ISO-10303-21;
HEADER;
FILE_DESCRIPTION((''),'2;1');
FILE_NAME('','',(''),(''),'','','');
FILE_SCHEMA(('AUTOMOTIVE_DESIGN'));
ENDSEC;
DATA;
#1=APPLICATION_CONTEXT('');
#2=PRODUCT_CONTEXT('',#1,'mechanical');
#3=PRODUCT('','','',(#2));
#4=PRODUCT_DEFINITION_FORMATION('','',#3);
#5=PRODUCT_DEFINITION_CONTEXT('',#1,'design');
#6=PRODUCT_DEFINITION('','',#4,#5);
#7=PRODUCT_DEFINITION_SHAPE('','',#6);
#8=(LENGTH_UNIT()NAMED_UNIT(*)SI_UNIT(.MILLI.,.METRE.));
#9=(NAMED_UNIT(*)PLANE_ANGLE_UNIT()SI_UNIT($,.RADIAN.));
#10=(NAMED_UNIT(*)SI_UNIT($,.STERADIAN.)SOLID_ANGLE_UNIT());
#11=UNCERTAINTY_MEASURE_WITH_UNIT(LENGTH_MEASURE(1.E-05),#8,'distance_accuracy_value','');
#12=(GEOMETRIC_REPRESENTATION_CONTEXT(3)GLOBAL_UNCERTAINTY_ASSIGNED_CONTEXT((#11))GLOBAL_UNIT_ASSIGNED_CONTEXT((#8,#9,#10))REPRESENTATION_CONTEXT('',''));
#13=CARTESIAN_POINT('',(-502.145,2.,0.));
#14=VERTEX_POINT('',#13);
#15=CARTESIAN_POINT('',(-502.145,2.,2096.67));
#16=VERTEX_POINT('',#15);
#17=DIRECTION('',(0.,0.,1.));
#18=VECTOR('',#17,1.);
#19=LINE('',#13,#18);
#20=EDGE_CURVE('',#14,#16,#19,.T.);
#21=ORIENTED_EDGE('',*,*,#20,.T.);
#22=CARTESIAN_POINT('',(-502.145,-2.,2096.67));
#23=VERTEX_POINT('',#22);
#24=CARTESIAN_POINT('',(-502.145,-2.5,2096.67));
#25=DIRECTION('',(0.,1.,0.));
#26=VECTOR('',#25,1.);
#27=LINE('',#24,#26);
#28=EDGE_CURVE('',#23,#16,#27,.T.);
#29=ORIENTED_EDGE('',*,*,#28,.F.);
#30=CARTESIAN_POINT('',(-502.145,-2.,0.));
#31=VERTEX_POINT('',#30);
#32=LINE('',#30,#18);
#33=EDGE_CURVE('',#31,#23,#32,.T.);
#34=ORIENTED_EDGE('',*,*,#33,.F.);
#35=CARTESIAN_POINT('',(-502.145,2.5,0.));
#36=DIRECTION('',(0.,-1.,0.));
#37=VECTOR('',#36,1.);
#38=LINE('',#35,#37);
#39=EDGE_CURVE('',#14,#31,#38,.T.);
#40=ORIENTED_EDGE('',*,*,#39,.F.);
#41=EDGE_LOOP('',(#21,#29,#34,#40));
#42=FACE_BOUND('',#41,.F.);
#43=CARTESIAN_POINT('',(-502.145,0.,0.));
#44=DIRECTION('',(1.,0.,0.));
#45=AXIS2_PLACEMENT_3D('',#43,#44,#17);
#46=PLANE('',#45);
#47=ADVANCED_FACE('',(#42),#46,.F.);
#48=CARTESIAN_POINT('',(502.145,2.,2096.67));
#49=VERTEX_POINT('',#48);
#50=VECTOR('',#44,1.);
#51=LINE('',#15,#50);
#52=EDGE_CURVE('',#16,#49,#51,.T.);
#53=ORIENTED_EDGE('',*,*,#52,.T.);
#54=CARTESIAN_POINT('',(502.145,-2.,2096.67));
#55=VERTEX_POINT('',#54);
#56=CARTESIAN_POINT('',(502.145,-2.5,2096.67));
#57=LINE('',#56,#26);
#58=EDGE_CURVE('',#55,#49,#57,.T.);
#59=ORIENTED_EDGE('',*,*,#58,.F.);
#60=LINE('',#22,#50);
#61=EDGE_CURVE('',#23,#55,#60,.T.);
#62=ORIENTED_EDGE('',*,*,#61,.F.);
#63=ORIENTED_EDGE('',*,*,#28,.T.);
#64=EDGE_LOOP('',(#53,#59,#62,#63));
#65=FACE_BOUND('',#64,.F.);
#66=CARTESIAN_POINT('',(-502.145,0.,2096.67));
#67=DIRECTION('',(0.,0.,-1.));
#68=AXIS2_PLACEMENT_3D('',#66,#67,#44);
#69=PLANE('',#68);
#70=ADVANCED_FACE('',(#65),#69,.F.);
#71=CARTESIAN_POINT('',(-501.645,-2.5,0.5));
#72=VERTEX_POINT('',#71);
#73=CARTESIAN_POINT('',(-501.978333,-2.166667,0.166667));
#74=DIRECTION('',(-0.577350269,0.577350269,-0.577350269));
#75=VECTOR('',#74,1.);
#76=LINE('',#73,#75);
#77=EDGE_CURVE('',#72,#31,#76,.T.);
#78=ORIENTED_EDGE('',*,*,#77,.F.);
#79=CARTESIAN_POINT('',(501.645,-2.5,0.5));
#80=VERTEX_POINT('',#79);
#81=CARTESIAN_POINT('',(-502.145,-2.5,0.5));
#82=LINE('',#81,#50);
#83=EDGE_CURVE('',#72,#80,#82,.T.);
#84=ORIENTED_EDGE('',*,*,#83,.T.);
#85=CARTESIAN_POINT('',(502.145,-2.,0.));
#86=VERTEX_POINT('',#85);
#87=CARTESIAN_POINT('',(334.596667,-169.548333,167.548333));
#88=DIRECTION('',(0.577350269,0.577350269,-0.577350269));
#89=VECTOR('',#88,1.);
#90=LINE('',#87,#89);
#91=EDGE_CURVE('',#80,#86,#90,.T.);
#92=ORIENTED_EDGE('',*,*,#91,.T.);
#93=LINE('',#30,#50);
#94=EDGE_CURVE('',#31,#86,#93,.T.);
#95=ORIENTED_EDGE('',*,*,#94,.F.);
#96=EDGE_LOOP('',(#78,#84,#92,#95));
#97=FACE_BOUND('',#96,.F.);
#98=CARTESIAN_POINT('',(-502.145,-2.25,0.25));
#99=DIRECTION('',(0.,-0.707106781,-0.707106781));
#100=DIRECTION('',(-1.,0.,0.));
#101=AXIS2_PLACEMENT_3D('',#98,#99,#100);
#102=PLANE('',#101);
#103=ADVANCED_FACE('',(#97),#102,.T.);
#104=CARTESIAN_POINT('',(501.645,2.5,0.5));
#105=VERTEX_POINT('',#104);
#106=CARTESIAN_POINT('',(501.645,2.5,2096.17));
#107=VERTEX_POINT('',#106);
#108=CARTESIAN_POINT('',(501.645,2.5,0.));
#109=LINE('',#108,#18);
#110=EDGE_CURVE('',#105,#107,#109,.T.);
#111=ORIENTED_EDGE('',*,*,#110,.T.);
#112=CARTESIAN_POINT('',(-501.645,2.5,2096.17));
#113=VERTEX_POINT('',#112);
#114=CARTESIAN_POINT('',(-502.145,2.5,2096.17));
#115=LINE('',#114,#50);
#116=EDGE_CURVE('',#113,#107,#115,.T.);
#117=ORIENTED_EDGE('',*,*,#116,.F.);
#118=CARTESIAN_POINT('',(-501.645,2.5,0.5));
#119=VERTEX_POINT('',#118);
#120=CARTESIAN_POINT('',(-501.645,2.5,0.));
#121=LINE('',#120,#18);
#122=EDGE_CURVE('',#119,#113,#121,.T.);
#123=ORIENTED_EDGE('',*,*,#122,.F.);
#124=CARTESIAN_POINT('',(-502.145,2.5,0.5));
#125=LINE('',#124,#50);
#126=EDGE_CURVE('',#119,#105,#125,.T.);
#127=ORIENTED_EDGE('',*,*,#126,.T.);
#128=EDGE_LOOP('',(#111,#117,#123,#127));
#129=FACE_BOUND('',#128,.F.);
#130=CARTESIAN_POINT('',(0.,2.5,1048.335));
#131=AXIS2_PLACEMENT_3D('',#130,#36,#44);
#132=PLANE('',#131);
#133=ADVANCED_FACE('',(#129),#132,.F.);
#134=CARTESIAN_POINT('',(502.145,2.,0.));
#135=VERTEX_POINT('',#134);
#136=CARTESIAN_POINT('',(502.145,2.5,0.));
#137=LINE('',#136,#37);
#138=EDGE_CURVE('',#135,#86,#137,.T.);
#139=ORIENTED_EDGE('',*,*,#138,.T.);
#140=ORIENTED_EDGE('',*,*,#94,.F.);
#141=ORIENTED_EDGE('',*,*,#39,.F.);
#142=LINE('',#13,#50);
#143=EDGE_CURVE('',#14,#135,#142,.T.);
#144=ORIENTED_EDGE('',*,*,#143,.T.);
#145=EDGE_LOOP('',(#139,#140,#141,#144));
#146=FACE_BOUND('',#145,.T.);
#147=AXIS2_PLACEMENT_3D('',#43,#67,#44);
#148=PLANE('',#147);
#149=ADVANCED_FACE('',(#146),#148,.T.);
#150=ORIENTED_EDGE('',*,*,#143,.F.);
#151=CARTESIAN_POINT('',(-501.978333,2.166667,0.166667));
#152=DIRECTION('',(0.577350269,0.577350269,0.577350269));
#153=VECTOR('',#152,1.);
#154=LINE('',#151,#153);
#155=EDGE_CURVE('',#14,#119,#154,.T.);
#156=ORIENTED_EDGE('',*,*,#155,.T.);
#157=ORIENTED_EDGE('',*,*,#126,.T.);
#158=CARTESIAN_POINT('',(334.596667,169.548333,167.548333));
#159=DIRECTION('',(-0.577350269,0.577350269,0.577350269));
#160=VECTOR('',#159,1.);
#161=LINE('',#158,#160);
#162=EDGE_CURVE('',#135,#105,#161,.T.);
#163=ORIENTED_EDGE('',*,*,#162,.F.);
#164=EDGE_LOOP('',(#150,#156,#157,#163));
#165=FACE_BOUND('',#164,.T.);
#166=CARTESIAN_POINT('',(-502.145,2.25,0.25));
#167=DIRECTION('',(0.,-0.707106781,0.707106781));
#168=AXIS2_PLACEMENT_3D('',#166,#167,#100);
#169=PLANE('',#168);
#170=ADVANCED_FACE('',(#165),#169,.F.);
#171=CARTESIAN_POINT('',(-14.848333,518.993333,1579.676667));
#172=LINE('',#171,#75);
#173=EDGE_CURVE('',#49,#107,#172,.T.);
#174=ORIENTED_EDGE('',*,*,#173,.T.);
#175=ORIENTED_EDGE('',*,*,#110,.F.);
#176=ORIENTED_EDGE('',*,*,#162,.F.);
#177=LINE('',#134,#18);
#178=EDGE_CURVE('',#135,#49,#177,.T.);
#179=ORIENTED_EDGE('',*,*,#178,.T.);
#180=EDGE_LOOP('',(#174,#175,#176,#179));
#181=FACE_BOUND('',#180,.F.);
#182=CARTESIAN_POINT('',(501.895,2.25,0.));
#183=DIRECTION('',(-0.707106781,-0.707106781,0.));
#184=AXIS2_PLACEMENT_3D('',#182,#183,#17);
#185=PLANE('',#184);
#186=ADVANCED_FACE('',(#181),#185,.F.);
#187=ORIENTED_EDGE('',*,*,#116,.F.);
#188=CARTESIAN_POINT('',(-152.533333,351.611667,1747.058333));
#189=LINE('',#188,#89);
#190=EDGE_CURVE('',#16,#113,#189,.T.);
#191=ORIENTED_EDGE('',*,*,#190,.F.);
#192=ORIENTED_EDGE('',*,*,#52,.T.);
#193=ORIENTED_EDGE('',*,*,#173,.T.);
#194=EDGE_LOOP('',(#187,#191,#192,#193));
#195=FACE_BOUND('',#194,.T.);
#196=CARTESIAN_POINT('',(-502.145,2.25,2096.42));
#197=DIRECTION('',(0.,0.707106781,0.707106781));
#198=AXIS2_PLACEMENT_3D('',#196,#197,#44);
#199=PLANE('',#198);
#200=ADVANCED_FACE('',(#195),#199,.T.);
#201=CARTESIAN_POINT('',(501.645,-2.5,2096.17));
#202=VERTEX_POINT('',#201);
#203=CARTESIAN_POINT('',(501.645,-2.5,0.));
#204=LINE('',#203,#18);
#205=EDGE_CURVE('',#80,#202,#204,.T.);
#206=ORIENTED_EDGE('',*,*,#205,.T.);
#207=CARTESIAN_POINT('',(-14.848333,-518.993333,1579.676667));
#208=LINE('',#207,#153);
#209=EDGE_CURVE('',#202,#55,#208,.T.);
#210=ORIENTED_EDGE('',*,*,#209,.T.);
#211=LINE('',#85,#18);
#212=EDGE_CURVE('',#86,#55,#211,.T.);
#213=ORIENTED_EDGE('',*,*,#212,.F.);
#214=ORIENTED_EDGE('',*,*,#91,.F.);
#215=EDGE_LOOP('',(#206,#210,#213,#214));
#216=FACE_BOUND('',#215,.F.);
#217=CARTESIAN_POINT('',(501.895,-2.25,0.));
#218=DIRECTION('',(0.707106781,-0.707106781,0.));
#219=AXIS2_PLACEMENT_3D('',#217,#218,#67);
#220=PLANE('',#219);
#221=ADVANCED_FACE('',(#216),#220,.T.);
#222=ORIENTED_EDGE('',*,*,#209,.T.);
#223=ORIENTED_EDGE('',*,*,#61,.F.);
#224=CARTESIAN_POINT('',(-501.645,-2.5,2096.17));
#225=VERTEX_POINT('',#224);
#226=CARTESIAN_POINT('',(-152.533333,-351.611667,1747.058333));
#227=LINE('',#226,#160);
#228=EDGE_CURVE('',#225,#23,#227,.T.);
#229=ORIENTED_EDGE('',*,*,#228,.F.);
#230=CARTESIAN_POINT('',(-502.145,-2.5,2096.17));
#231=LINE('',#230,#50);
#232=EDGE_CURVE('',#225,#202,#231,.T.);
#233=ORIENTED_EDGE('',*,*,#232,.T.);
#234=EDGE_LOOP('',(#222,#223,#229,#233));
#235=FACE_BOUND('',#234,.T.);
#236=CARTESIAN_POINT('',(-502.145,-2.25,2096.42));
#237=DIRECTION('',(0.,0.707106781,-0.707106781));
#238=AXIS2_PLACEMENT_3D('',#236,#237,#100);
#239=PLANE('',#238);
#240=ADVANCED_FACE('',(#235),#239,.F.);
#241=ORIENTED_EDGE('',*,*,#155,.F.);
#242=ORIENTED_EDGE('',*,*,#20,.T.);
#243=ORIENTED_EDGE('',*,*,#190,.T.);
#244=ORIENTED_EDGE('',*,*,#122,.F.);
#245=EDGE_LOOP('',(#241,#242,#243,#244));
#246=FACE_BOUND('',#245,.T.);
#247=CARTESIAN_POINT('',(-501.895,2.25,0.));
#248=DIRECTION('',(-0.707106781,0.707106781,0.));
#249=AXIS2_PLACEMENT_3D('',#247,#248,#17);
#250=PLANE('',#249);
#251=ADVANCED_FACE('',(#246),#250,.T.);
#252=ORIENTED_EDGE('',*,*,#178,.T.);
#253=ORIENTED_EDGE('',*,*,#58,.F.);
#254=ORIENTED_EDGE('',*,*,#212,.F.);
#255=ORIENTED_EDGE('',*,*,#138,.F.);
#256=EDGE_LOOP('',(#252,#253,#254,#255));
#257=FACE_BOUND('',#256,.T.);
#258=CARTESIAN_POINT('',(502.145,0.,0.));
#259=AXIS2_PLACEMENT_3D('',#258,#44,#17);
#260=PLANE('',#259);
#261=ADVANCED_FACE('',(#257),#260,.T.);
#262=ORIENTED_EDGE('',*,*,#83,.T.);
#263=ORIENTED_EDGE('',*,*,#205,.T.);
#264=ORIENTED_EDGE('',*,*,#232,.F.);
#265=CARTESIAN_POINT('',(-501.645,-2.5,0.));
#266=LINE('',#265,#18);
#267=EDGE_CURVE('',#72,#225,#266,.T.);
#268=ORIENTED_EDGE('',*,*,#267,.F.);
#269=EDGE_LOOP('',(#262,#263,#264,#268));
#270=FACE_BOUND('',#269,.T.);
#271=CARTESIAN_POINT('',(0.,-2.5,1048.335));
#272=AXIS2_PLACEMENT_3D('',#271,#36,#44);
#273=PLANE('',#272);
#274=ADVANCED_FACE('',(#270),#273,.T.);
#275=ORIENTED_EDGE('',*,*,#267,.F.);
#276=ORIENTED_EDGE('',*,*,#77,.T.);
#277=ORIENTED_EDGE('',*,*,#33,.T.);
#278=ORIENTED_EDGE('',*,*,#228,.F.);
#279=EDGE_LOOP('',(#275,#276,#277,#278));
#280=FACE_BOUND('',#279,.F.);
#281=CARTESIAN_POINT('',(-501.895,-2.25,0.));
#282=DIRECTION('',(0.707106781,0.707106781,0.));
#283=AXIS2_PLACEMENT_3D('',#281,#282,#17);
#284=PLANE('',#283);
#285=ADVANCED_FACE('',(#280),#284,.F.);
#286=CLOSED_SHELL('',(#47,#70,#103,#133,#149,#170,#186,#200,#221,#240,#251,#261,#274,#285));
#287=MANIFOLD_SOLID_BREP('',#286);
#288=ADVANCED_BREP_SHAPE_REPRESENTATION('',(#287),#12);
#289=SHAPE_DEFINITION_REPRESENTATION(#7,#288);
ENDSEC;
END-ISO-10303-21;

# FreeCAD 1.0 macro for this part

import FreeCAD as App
import Part
import Sketcher

V = App.Vector
Q = App.Units.Quantity


def edges_at(feature, points):
    """Names of the edges that pass closest to the given points."""
    edges = feature.Shape.Edges
    near = lambda p: min(range(len(edges)), key=lambda i: edges[i].distToShape(Part.Vertex(*p))[0])
    return sorted({f"Edge{near(p) + 1}" for p in points})


def add_polygon(sketch, points):
    """Adds a closed chain of lines whose ends are joined by coincident constraints."""
    first, n = sketch.GeometryCount, len(points)
    for a, b in zip(points, points[1:] + points[:1]):
        sketch.addGeometry(Part.LineSegment(App.Vector(*a, 0), App.Vector(*b, 0)), False)
    for i in range(n):
        sketch.addConstraint(Sketcher.Constraint("Coincident", first + i, 2, first + (i + 1) % n, 1))

doc = App.newDocument("Part")
body = doc.addObject("PartDesign::Body", "Body")

sketch1 = doc.addObject("Sketcher::SketchObject", "Sketch")
body.addObject(sketch1)
sketch1.AttachmentSupport = (doc.XZ_Plane, [""])
sketch1.MapMode = "FlatFace"
add_polygon(sketch1, [(-502.145, 2096.67), (-502.145, 0), (502.145, 0), (502.145, 2096.67)])
sketch1.addConstraint([
    Sketcher.Constraint("Vertical", 0),
    Sketcher.Constraint("Horizontal", 1),
    Sketcher.Constraint("Vertical", 2),
    Sketcher.Constraint("Horizontal", 3),
    Sketcher.Constraint("Symmetric", 0, 2, 1, 2, -1, 1),
    Sketcher.Constraint("DistanceX", 1, 1, 1, 2, Q("1004.29 mm")),
    Sketcher.Constraint("DistanceY", 0, 2, 0, 1, Q("2096.67 mm")),
])
pad1 = doc.addObject("PartDesign::Pad", "Pad")
body.addObject(pad1)
pad1.Profile = sketch1
pad1.Length = 5
pad1.Midplane = True
doc.recompute()

chamfer = doc.addObject("PartDesign::Chamfer", "Chamfer")
body.addObject(chamfer)
chamfer.Base = (pad1, edges_at(pad1, [
    (0, -2.5, 0),
    (502.145, -2.5, 1048.335),
    (0, -2.5, 2096.67),
    (-502.145, -2.5, 1048.335),
    (-502.145, 2.5, 1048.335),
    (0, 2.5, 2096.67),
    (502.145, 2.5, 1048.335),
    (0, 2.5, 0),
]))
chamfer.ChamferType = "Two distances"
chamfer.Size = 0.5
chamfer.Size2 = 0.5

doc.recompute()
